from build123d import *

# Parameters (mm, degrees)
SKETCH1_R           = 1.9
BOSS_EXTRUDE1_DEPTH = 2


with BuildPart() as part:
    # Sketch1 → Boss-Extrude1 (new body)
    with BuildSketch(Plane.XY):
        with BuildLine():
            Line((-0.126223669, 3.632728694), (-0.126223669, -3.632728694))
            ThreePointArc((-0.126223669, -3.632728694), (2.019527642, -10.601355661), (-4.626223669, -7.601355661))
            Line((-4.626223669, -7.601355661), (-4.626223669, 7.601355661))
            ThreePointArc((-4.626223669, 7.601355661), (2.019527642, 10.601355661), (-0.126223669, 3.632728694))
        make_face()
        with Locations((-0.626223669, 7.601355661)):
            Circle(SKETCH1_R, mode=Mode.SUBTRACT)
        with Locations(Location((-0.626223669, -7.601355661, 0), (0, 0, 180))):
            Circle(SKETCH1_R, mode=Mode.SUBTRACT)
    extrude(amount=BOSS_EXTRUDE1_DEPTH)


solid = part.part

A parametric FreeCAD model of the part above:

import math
import FreeCAD as App
import Part
import Sketcher
from FreeCAD import Vector
Q = App.Units.Quantity

doc = App.newDocument("Part")
body = doc.addObject("PartDesign::Body", "Body")

sketch1 = doc.addObject("Sketcher::SketchObject", "Sketch")
body.addObject(sketch1)
sketch1.AttachmentSupport = (doc.XY_Plane, [""])
sketch1.MapMode = "FlatFace"
sketch1.addGeometry([
    Part.LineSegment(Vector(-0.1, -3.6, 0), Vector(-0.1, 3.6, 0)),
    Part.ArcOfCircle(Part.Circle(Vector(-0.6, 7.6, 0), Vector(0, 0, 1), 4), math.radians(-83), math.radians(180)),
    Part.LineSegment(Vector(-4.6, 7.6, 0), Vector(-4.6, -7.6, 0)),
    Part.ArcOfCircle(Part.Circle(Vector(-0.6, -7.6, 0), Vector(0, 0, 1), 4), math.radians(180), math.radians(443)),
    Part.Circle(Vector(-0.6, -7.6, 0), Vector(0, 0, 1), 1.9),
    Part.Circle(Vector(-0.6, 7.6, 0), Vector(0, 0, 1), 1.9),
], False)
sketch1.addConstraint([
    Sketcher.Constraint("Coincident", 0, 2, 1, 1),
    Sketcher.Constraint("Tangent", 1, 2, 2, 1),
    Sketcher.Constraint("Tangent", 2, 2, 3, 1),
    Sketcher.Constraint("Coincident", 3, 2, 0, 1),
    Sketcher.Constraint("Vertical", 0),
    Sketcher.Constraint("Vertical", 2),
    Sketcher.Constraint("Coincident", 4, 3, 3, 3),
    Sketcher.Constraint("Coincident", 5, 3, 1, 3),
    Sketcher.Constraint("Equal", 1, 3),
    Sketcher.Constraint("Equal", 4, 5),
    Sketcher.Constraint("Radius", 1, Q("4 mm")),
    Sketcher.Constraint("Diameter", 4, Q("3.8 mm")),
    Sketcher.Constraint("DistanceX", 1, 3, 0, 2, Q("0.5 mm")),
    Sketcher.Constraint("DistanceY", 2, 2, 2, 1, Q("15.202711 mm")),
    Sketcher.Constraint("DistanceY", -1, 1, 0, 2, Q("3.632729 mm")),
    Sketcher.Constraint("DistanceX", 1, 3, -1, 1, Q("0.626224 mm")),
])
pad1 = doc.addObject("PartDesign::Pad", "Pad")
body.addObject(pad1)
pad1.Profile = sketch1
pad1.Length = 2

doc.recompute()
